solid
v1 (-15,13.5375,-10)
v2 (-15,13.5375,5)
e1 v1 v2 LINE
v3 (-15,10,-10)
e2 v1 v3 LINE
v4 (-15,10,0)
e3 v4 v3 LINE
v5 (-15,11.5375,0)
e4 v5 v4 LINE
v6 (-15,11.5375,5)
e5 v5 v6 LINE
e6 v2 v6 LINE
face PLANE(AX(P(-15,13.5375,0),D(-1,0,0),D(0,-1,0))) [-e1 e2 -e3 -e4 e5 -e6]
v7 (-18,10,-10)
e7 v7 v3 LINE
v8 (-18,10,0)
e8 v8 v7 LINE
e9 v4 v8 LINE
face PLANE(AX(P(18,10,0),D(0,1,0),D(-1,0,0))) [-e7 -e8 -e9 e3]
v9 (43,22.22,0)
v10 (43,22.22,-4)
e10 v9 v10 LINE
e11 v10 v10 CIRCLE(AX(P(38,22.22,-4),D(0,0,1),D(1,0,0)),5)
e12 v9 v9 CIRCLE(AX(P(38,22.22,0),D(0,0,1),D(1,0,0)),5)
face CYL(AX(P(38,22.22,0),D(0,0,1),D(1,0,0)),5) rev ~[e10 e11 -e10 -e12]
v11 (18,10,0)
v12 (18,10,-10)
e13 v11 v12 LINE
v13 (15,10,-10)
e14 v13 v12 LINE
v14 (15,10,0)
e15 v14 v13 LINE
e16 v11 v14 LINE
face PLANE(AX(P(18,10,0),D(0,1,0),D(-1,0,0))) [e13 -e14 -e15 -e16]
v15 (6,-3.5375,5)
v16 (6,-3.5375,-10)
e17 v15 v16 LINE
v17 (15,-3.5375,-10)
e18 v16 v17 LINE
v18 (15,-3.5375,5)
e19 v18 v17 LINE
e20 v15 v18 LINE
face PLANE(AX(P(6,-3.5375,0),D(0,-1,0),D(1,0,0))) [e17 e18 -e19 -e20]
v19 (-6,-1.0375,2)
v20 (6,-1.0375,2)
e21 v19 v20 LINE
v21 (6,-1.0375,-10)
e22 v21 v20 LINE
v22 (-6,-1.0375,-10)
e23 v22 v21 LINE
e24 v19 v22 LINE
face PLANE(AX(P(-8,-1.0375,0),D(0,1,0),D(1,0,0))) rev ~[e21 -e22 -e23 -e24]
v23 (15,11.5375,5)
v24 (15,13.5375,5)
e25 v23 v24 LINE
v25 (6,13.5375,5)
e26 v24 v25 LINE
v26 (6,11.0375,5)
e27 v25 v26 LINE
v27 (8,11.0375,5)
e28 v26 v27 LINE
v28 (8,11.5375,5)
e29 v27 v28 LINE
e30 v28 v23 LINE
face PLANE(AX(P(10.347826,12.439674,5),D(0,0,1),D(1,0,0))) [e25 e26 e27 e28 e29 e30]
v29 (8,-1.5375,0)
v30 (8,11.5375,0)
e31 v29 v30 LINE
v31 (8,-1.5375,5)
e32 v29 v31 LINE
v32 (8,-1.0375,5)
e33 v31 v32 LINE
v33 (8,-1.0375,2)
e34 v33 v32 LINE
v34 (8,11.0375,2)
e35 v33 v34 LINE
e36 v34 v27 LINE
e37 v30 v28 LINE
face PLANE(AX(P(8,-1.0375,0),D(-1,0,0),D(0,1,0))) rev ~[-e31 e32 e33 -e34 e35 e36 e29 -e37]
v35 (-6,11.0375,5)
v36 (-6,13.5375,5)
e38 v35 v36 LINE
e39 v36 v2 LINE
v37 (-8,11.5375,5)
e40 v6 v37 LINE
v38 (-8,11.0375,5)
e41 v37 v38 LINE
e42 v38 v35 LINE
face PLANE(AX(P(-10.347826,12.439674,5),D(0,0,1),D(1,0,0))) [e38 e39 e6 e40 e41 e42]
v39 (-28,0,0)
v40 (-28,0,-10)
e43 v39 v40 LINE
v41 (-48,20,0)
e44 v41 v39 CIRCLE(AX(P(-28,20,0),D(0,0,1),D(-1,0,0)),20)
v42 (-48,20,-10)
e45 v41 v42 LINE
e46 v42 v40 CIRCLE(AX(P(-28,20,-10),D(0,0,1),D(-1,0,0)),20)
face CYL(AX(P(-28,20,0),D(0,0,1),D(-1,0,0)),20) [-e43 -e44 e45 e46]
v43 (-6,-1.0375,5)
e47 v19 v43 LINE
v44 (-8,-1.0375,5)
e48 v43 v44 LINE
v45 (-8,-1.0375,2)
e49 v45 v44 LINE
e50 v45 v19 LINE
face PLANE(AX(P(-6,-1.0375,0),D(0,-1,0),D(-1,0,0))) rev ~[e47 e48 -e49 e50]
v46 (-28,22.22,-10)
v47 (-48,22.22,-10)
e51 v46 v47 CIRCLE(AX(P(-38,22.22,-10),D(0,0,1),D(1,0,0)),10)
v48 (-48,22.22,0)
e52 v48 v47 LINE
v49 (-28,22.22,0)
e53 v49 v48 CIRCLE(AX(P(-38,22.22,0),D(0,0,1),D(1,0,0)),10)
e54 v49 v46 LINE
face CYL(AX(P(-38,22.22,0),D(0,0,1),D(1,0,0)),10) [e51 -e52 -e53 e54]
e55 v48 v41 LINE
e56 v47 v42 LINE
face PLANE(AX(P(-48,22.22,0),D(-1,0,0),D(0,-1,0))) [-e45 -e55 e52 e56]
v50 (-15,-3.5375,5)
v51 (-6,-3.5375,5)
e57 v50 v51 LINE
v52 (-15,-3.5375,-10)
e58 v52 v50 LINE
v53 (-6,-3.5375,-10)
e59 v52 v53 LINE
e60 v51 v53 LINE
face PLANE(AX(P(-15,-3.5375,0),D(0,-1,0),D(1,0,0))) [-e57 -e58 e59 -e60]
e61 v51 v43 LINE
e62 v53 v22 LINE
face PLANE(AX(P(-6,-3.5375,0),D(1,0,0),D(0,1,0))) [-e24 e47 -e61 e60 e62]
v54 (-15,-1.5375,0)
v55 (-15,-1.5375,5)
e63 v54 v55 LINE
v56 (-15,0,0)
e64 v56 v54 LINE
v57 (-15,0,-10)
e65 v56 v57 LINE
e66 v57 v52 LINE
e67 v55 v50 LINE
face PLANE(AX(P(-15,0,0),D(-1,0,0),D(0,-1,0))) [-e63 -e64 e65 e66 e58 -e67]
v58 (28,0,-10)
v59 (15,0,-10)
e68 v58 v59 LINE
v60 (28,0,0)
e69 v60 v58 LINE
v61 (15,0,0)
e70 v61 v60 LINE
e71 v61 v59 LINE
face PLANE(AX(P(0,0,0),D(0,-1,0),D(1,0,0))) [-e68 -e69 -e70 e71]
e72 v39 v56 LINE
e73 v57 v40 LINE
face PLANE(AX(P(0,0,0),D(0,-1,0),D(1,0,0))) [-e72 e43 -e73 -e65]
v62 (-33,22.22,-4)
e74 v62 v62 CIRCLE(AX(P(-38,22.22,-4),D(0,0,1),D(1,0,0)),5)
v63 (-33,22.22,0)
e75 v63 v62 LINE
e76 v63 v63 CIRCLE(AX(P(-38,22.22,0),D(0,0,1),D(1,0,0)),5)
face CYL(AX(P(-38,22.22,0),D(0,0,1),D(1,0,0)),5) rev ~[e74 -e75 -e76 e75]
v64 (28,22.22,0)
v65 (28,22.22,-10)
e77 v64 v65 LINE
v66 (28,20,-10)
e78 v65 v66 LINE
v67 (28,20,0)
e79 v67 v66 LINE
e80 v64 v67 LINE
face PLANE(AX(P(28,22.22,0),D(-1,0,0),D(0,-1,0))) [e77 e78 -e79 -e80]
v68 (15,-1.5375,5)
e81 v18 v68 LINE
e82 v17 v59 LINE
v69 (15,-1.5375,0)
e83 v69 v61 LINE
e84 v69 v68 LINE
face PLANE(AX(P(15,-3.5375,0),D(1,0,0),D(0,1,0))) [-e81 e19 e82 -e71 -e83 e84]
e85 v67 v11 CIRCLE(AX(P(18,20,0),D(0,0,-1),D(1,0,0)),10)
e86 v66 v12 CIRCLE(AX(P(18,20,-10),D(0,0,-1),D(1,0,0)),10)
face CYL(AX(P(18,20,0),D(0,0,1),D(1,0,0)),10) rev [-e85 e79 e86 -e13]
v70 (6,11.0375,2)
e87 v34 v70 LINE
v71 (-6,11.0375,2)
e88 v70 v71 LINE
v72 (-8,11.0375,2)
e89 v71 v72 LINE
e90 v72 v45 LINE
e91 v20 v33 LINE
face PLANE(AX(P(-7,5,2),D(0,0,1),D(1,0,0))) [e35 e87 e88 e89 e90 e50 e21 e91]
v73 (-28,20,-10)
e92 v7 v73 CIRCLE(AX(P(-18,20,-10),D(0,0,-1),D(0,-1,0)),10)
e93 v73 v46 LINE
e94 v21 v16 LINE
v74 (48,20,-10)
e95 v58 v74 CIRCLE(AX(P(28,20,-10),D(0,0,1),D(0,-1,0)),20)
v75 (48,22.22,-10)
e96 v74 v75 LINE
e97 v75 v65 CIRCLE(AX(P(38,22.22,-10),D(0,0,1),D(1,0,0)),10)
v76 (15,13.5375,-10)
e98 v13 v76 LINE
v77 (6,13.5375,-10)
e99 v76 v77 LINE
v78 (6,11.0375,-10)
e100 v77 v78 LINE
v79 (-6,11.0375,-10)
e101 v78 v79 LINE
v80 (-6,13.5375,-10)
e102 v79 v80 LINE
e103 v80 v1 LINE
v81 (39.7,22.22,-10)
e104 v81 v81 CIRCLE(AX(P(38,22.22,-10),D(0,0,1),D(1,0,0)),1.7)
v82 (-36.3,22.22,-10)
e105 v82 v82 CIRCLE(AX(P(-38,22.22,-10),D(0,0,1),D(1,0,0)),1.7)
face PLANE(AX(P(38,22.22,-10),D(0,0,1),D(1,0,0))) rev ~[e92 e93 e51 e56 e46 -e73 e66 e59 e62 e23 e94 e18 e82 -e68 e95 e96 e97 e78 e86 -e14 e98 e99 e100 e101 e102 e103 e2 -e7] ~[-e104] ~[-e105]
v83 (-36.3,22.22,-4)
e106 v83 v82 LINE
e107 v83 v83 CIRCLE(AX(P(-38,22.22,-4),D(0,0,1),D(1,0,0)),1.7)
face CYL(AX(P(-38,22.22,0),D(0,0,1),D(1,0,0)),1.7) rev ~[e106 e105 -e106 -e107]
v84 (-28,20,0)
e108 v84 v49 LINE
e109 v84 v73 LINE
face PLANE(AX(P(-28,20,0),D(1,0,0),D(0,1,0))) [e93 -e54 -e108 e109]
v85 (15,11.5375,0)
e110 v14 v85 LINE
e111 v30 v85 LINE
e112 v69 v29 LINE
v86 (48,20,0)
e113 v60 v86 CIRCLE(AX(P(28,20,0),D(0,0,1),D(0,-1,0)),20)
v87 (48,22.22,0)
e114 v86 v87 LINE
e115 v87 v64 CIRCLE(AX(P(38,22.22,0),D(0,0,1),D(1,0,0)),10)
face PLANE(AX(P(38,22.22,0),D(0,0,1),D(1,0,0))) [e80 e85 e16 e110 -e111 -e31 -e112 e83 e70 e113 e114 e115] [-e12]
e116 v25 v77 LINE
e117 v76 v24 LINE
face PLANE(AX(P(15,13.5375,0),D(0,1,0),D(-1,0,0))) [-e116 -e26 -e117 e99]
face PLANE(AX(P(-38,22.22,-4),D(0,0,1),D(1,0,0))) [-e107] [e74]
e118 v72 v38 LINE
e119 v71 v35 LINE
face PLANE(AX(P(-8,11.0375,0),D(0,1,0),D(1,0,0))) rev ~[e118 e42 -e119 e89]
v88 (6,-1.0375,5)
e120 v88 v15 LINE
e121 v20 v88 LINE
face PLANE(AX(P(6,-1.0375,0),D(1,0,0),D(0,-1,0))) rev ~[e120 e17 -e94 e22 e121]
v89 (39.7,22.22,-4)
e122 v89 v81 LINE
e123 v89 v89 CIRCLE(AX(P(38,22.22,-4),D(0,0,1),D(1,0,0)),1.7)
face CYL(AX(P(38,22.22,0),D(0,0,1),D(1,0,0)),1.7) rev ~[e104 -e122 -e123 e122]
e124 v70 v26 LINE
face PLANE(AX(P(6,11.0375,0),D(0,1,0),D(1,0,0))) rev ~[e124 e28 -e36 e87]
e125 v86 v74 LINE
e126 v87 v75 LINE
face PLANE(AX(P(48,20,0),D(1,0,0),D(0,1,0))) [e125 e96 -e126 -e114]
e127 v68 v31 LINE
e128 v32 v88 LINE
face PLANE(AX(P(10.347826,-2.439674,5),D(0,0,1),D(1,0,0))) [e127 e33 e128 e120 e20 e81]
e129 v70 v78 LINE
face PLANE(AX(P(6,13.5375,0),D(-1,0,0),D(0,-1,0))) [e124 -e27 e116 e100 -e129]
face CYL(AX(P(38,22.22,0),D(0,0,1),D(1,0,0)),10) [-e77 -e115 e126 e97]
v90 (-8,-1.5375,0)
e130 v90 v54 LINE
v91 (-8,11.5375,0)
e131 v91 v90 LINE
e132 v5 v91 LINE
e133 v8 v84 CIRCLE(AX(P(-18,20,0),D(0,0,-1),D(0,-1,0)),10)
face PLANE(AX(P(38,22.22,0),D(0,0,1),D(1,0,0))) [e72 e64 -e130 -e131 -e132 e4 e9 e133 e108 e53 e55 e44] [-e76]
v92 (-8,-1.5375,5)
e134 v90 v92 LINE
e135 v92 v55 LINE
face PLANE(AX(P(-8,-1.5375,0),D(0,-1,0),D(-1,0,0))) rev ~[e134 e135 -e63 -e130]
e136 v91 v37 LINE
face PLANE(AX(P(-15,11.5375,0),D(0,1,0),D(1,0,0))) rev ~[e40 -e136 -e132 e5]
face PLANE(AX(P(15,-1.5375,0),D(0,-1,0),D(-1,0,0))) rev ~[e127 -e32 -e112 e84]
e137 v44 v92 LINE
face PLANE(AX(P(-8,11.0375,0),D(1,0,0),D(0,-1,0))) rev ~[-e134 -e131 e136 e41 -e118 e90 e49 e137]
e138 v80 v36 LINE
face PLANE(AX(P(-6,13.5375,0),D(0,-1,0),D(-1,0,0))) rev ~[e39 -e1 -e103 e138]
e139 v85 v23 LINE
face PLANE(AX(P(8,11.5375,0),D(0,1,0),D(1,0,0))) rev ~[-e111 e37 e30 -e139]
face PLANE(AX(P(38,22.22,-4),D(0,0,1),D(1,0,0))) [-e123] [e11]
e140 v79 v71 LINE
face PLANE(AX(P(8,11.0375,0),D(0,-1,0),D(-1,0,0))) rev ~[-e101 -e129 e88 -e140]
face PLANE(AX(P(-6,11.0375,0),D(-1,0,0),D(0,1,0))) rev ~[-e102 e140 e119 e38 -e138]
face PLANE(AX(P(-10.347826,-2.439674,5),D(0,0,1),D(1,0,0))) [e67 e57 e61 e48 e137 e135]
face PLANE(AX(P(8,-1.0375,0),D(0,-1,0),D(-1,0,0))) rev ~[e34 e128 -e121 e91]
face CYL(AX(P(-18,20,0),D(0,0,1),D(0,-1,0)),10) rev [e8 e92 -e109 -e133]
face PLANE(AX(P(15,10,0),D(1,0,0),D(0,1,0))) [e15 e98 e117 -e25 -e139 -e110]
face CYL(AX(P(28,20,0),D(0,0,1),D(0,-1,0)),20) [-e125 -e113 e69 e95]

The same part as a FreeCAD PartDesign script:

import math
import FreeCAD as App
import Part
import Sketcher
from FreeCAD import Vector
Q = App.Units.Quantity


def add_polygon(sketch, points):
    """Adds a closed chain of lines whose ends are joined by coincident constraints."""
    first, n = sketch.GeometryCount, len(points)
    for a, b in zip(points, points[1:] + points[:1]):
        sketch.addGeometry(Part.LineSegment(App.Vector(*a, 0), App.Vector(*b, 0)), False)
    for i in range(n):
        sketch.addConstraint(Sketcher.Constraint("Coincident", first + i, 2, first + (i + 1) % n, 1))

doc = App.newDocument("Part")
body = doc.addObject("PartDesign::Body", "Body")

# Sketch on XY plane
sketch1 = body.newObject("Sketcher::SketchObject", "Sketch")
sketch1.AttachmentSupport = (doc.getObject("XY_Plane"), [""])
sketch1.MapMode = "FlatFace"
sketch1.addGeometry(Part.LineSegment(Vector(-48, 22.2, 0), Vector(-48, 20, 0)), False)
sketch1.addGeometry(Part.ArcOfCircle(Part.Circle(Vector(-28, 20, 0), Vector(0, 0, 1), 20), math.radians(180), math.radians(270)), False)
sketch1.addGeometry(Part.LineSegment(Vector(-28, 0, 0), Vector(28, 0, 0)), False)
sketch1.addGeometry(Part.ArcOfCircle(Part.Circle(Vector(28, 20, 0), Vector(0, 0, 1), 20), math.radians(-90), math.radians(0)), False)
sketch1.addGeometry(Part.LineSegment(Vector(48, 20, 0), Vector(48, 22.2, 0)), False)
sketch1.addGeometry(Part.ArcOfCircle(Part.Circle(Vector(38, 22.2, 0), Vector(0, 0, 1), 10), math.radians(0), math.radians(180)), False)
sketch1.addGeometry(Part.LineSegment(Vector(28, 22.2, 0), Vector(28, 20, 0)), False)
sketch1.addGeometry(Part.ArcOfCircle(Part.Circle(Vector(18, 20, 0), Vector(0, 0, 1), 10), math.radians(-90), math.radians(0)), False)
sketch1.addGeometry(Part.LineSegment(Vector(18, 10, 0), Vector(-18, 10, 0)), False)
sketch1.addGeometry(Part.ArcOfCircle(Part.Circle(Vector(-18, 20, 0), Vector(0, 0, 1), 10), math.radians(180), math.radians(270)), False)
sketch1.addGeometry(Part.LineSegment(Vector(-28, 20, 0), Vector(-28, 22.2, 0)), False)
sketch1.addGeometry(Part.ArcOfCircle(Part.Circle(Vector(-38, 22.2, 0), Vector(0, 0, 1), 10), math.radians(0), math.radians(180)), False)
sketch1.addGeometry(Part.Circle(Vector(-38, 22.2, 0), Vector(0, 0, 1), 1.7), False)
sketch1.addGeometry(Part.Circle(Vector(38, 22.2, 0), Vector(0, 0, 1), 1.7), False)
sketch1.addConstraint(Sketcher.Constraint("Tangent", 0, 2, 1, 1))
sketch1.addConstraint(Sketcher.Constraint("Tangent", 1, 2, 2, 1))
sketch1.addConstraint(Sketcher.Constraint("Tangent", 2, 2, 3, 1))
sketch1.addConstraint(Sketcher.Constraint("Tangent", 3, 2, 4, 1))
sketch1.addConstraint(Sketcher.Constraint("Tangent", 4, 2, 5, 1))
sketch1.addConstraint(Sketcher.Constraint("Tangent", 5, 2, 6, 1))
sketch1.addConstraint(Sketcher.Constraint("Tangent", 6, 2, 7, 2))
sketch1.addConstraint(Sketcher.Constraint("Tangent", 7, 1, 8, 1))
sketch1.addConstraint(Sketcher.Constraint("Tangent", 8, 2, 9, 2))
sketch1.addConstraint(Sketcher.Constraint("Tangent", 9, 1, 10, 1))
sketch1.addConstraint(Sketcher.Constraint("Tangent", 10, 2, 11, 1))
sketch1.addConstraint(Sketcher.Constraint("Tangent", 11, 2, 0, 1))
sketch1.addConstraint(Sketcher.Constraint("Vertical", 0))
sketch1.addConstraint(Sketcher.Constraint("Horizontal", 2))
sketch1.addConstraint(Sketcher.Constraint("Vertical", 4))
sketch1.addConstraint(Sketcher.Constraint("Vertical", 6))
sketch1.addConstraint(Sketcher.Constraint("Horizontal", 8))
sketch1.addConstraint(Sketcher.Constraint("Vertical", 10))
sketch1.addConstraint(Sketcher.Constraint("Coincident", 12, 3, 11, 3))
sketch1.addConstraint(Sketcher.Constraint("Coincident", 13, 3, 5, 3))
sketch1.addConstraint(Sketcher.Constraint("Coincident", 6, 2, 3, 3))
sketch1.addConstraint(Sketcher.Constraint("Coincident", 9, 1, 1, 3))
sketch1.addConstraint(Sketcher.Constraint("Equal", 1, 3))
sketch1.addConstraint(Sketcher.Constraint("Equal", 5, 7))
sketch1.addConstraint(Sketcher.Constraint("Equal", 12, 13))
sketch1.addConstraint(Sketcher.Constraint("Symmetric", 1, 2, 2, 2, -1, 1))
sketch1.addConstraint(Sketcher.Constraint("Horizontal", 5, 3, 11, 3))
sketch1.addConstraint(Sketcher.Constraint("Radius", 1, Q("20 mm")))
sketch1.addConstraint(Sketcher.Constraint("Diameter", 12, Q("3.4 mm")))
sketch1.addConstraint(Sketcher.Constraint("DistanceX", 2, 1, 2, 2, Q("56 mm")))
sketch1.addConstraint(Sketcher.Constraint("DistanceY", 0, 2, 0, 1, Q("2.22 mm")))
pad1 = body.newObject("PartDesign::Pad", "Pad")
pad1.Profile = sketch1
pad1.Length = 10
pad1.Reversed = True

# Sketch on XY plane
sketch2 = body.newObject("Sketcher::SketchObject", "Sketch001")
sketch2.AttachmentSupport = (doc.getObject("XY_Plane"), [""])
sketch2.MapMode = "FlatFace"
sketch2.addGeometry(Part.Circle(Vector(-38, 22.2, 0), Vector(0, 0, 1), 5), False)
sketch2.addGeometry(Part.Circle(Vector(-38, 22.2, 0), Vector(0, 0, 1), 1.7), False)
sketch2.addGeometry(Part.Circle(Vector(38, 22.2, 0), Vector(0, 0, 1), 5), False)
sketch2.addGeometry(Part.Circle(Vector(38, 22.2, 0), Vector(0, 0, 1), 1.7), False)
sketch2.addConstraint(Sketcher.Constraint("Coincident", 1, 3, 0, 3))
sketch2.addConstraint(Sketcher.Constraint("Coincident", 3, 3, 2, 3))
sketch2.addConstraint(Sketcher.Constraint("Equal", 0, 2))
sketch2.addConstraint(Sketcher.Constraint("Equal", 1, 3))
sketch2.addConstraint(Sketcher.Constraint("Symmetric", 0, 3, 2, 3, -2))
sketch2.addConstraint(Sketcher.Constraint("Diameter", 0, Q("10 mm")))
sketch2.addConstraint(Sketcher.Constraint("Diameter", 1, Q("3.4 mm")))
sketch2.addConstraint(Sketcher.Constraint("DistanceX", 0, 3, -1, 1, Q("38 mm")))
sketch2.addConstraint(Sketcher.Constraint("DistanceY", -1, 1, 0, 3, Q("22.22 mm")))
pocket1 = body.newObject("PartDesign::Pocket", "Pocket")
pocket1.Profile = sketch2
pocket1.Length = 4

# Sketch on XY plane
sketch3 = body.newObject("Sketcher::SketchObject", "Sketch002")
sketch3.AttachmentSupport = (doc.getObject("XY_Plane"), [""])
sketch3.MapMode = "FlatFace"
add_polygon(sketch3, [(-6, 11), (-6, 13.5), (-15, 13.5), (-15, 10), (15, 10), (15, 13.5), (6, 13.5), (6, 11)])  # lines 0-7
add_polygon(sketch3, [(-6, -1), (6, -1), (6, -3.5), (15, -3.5), (15, 0), (-15, 0), (-15, -3.5), (-6, -3.5)])  # lines 8-15
sketch3.addConstraint(Sketcher.Constraint("Vertical", 0))
sketch3.addConstraint(Sketcher.Constraint("Horizontal", 1))
sketch3.addConstraint(Sketcher.Constraint("Vertical", 2))
sketch3.addConstraint(Sketcher.Constraint("Horizontal", 3))
sketch3.addConstraint(Sketcher.Constraint("Vertical", 4))
sketch3.addConstraint(Sketcher.Constraint("Horizontal", 5))
sketch3.addConstraint(Sketcher.Constraint("Vertical", 6))
sketch3.addConstraint(Sketcher.Constraint("Horizontal", 7))
sketch3.addConstraint(Sketcher.Constraint("Horizontal", 8))
sketch3.addConstraint(Sketcher.Constraint("Vertical", 9))
sketch3.addConstraint(Sketcher.Constraint("Horizontal", 10))
sketch3.addConstraint(Sketcher.Constraint("Vertical", 11))
sketch3.addConstraint(Sketcher.Constraint("Horizontal", 12))
sketch3.addConstraint(Sketcher.Constraint("Vertical", 13))
sketch3.addConstraint(Sketcher.Constraint("Horizontal", 14))
sketch3.addConstraint(Sketcher.Constraint("Vertical", 15))
sketch3.addConstraint(Sketcher.Constraint("Symmetric", 11, 2, 12, 2, -1, 1))
sketch3.addConstraint(Sketcher.Constraint("Symmetric", 1, 2, 4, 2, -2))
sketch3.addConstraint(Sketcher.Constraint("Symmetric", 9, 2, 14, 2, -2))
sketch3.addConstraint(Sketcher.Constraint("Vertical", 6, 2, 8, 2))
sketch3.addConstraint(Sketcher.Constraint("Vertical", 4, 2, 10, 2))
sketch3.addConstraint(Sketcher.Constraint("Vertical", 7, 2, 14, 2))
sketch3.addConstraint(Sketcher.Constraint("Equal", 6, 9))
sketch3.addConstraint(Sketcher.Constraint("Equal", 4, 11))
sketch3.addConstraint(Sketcher.Constraint("DistanceX", 1, 2, 1, 1, Q("9 mm")))
sketch3.addConstraint(Sketcher.Constraint("DistanceX", 3, 1, 3, 2, Q("30 mm")))
sketch3.addConstraint(Sketcher.Constraint("DistanceY", 0, 1, 0, 2, Q("2.5 mm")))
sketch3.addConstraint(Sketcher.Constraint("DistanceY", -1, 1, 2, 2, Q("10 mm")))
sketch3.addConstraint(Sketcher.Constraint("DistanceY", 2, 2, 2, 1, Q("3.5375 mm")))
pad2 = body.newObject("PartDesign::Pad", "Pad001")
pad2.Profile = sketch3
pad2.Type = "UpToLast"
pad2.Reversed = True

# Sketch on XY plane
sketch4 = body.newObject("Sketcher::SketchObject", "Sketch003")
sketch4.AttachmentSupport = (doc.getObject("XY_Plane"), [""])
sketch4.MapMode = "FlatFace"
add_polygon(sketch4, [(-8, 11), (-6, 11), (-6, 13.5), (-15, 13.5), (-15, 11.5), (-8, 11.5)])  # lines 0-5
add_polygon(sketch4, [(-6, -3.5), (-6, -1), (-8, -1), (-8, -1.5), (-15, -1.5), (-15, -3.5)])  # lines 6-11
add_polygon(sketch4, [(8, -1), (6, -1), (6, -3.5), (15, -3.5), (15, -1.5), (8, -1.5)])  # lines 12-17
add_polygon(sketch4, [(6, 13.5), (6, 11), (8, 11), (8, 11.5), (15, 11.5), (15, 13.5)])  # lines 18-23
sketch4.addConstraint(Sketcher.Constraint("Horizontal", 0))
sketch4.addConstraint(Sketcher.Constraint("Vertical", 1))
sketch4.addConstraint(Sketcher.Constraint("Horizontal", 2))
sketch4.addConstraint(Sketcher.Constraint("Vertical", 3))
sketch4.addConstraint(Sketcher.Constraint("Horizontal", 4))
sketch4.addConstraint(Sketcher.Constraint("Vertical", 5))
sketch4.addConstraint(Sketcher.Constraint("Vertical", 6))
sketch4.addConstraint(Sketcher.Constraint("Horizontal", 7))
sketch4.addConstraint(Sketcher.Constraint("Vertical", 8))
sketch4.addConstraint(Sketcher.Constraint("Horizontal", 9))
sketch4.addConstraint(Sketcher.Constraint("Vertical", 10))
sketch4.addConstraint(Sketcher.Constraint("Horizontal", 11))
sketch4.addConstraint(Sketcher.Constraint("Horizontal", 12))
sketch4.addConstraint(Sketcher.Constraint("Vertical", 13))
sketch4.addConstraint(Sketcher.Constraint("Horizontal", 14))
sketch4.addConstraint(Sketcher.Constraint("Vertical", 15))
sketch4.addConstraint(Sketcher.Constraint("Horizontal", 16))
sketch4.addConstraint(Sketcher.Constraint("Vertical", 17))
sketch4.addConstraint(Sketcher.Constraint("Vertical", 18))
sketch4.addConstraint(Sketcher.Constraint("Horizontal", 19))
sketch4.addConstraint(Sketcher.Constraint("Vertical", 20))
sketch4.addConstraint(Sketcher.Constraint("Horizontal", 21))
sketch4.addConstraint(Sketcher.Constraint("Vertical", 22))
sketch4.addConstraint(Sketcher.Constraint("Horizontal", 23))
sketch4.addConstraint(Sketcher.Constraint("Symmetric", 6, 2, 12, 2, -2))
sketch4.addConstraint(Sketcher.Constraint("Symmetric", 10, 2, 14, 2, -2))
sketch4.addConstraint(Sketcher.Constraint("Symmetric", 8, 2, 16, 2, -2))
sketch4.addConstraint(Sketcher.Constraint("Symmetric", 0, 2, 18, 2, -2))
sketch4.addConstraint(Sketcher.Constraint("Symmetric", 4, 2, 20, 2, -2))
sketch4.addConstraint(Sketcher.Constraint("Symmetric", 2, 2, 22, 2, -2))
sketch4.addConstraint(Sketcher.Constraint("Vertical", 1, 2, 6, 2))
sketch4.addConstraint(Sketcher.Constraint("Vertical", 5, 2, 7, 2))
sketch4.addConstraint(Sketcher.Constraint("Vertical", 3, 2, 9, 2))
sketch4.addConstraint(Sketcher.Constraint("Equal", 19, 3))
sketch4.addConstraint(Sketcher.Constraint("Equal", 1, 6))
sketch4.addConstraint(Sketcher.Constraint("Equal", 5, 8))
sketch4.addConstraint(Sketcher.Constraint("DistanceX", 0, 1, 0, 2, Q("2 mm")))
sketch4.addConstraint(Sketcher.Constraint("DistanceX", 2, 2, 2, 1, Q("9 mm")))
sketch4.addConstraint(Sketcher.Constraint("DistanceY", 1, 1, 1, 2, Q("2.5 mm")))
sketch4.addConstraint(Sketcher.Constraint("DistanceX", 0, 2, -1, 1, Q("6 mm")))
sketch4.addConstraint(Sketcher.Constraint("DistanceY", 6, 2, 0, 2, Q("12.075 mm")))
sketch4.addConstraint(Sketcher.Constraint("DistanceY", -1, 1, 0, 2, Q("11.0375 mm")))
pad3 = body.newObject("PartDesign::Pad", "Pad002")
pad3.Profile = sketch4
pad3.Length = 5

# Sketch on XY plane
sketch5 = body.newObject("Sketcher::SketchObject", "Sketch004")
sketch5.AttachmentSupport = (doc.getObject("XY_Plane"), [""])
sketch5.MapMode = "FlatFace"
add_polygon(sketch5, [(8, 11), (-8, 11), (-8, -1), (8, -1)])  # lines 0-3
sketch5.addConstraint(Sketcher.Constraint("Horizontal", 0))
sketch5.addConstraint(Sketcher.Constraint("Vertical", 1))
sketch5.addConstraint(Sketcher.Constraint("Horizontal", 2))
sketch5.addConstraint(Sketcher.Constraint("Vertical", 3))
sketch5.addConstraint(Sketcher.Constraint("DistanceX", 0, 2, 0, 1, Q("16 mm")))
sketch5.addConstraint(Sketcher.Constraint("DistanceX", 0, 2, -1, 1, Q("8 mm")))
sketch5.addConstraint(Sketcher.Constraint("DistanceY", 1, 2, 1, 1, Q("12.075 mm")))
sketch5.addConstraint(Sketcher.Constraint("DistanceY", -1, 1, 0, 2, Q("11.0375 mm")))
pad4 = body.newObject("PartDesign::Pad", "Pad003")
pad4.Profile = sketch5
pad4.Length = 2

doc.recompute()
